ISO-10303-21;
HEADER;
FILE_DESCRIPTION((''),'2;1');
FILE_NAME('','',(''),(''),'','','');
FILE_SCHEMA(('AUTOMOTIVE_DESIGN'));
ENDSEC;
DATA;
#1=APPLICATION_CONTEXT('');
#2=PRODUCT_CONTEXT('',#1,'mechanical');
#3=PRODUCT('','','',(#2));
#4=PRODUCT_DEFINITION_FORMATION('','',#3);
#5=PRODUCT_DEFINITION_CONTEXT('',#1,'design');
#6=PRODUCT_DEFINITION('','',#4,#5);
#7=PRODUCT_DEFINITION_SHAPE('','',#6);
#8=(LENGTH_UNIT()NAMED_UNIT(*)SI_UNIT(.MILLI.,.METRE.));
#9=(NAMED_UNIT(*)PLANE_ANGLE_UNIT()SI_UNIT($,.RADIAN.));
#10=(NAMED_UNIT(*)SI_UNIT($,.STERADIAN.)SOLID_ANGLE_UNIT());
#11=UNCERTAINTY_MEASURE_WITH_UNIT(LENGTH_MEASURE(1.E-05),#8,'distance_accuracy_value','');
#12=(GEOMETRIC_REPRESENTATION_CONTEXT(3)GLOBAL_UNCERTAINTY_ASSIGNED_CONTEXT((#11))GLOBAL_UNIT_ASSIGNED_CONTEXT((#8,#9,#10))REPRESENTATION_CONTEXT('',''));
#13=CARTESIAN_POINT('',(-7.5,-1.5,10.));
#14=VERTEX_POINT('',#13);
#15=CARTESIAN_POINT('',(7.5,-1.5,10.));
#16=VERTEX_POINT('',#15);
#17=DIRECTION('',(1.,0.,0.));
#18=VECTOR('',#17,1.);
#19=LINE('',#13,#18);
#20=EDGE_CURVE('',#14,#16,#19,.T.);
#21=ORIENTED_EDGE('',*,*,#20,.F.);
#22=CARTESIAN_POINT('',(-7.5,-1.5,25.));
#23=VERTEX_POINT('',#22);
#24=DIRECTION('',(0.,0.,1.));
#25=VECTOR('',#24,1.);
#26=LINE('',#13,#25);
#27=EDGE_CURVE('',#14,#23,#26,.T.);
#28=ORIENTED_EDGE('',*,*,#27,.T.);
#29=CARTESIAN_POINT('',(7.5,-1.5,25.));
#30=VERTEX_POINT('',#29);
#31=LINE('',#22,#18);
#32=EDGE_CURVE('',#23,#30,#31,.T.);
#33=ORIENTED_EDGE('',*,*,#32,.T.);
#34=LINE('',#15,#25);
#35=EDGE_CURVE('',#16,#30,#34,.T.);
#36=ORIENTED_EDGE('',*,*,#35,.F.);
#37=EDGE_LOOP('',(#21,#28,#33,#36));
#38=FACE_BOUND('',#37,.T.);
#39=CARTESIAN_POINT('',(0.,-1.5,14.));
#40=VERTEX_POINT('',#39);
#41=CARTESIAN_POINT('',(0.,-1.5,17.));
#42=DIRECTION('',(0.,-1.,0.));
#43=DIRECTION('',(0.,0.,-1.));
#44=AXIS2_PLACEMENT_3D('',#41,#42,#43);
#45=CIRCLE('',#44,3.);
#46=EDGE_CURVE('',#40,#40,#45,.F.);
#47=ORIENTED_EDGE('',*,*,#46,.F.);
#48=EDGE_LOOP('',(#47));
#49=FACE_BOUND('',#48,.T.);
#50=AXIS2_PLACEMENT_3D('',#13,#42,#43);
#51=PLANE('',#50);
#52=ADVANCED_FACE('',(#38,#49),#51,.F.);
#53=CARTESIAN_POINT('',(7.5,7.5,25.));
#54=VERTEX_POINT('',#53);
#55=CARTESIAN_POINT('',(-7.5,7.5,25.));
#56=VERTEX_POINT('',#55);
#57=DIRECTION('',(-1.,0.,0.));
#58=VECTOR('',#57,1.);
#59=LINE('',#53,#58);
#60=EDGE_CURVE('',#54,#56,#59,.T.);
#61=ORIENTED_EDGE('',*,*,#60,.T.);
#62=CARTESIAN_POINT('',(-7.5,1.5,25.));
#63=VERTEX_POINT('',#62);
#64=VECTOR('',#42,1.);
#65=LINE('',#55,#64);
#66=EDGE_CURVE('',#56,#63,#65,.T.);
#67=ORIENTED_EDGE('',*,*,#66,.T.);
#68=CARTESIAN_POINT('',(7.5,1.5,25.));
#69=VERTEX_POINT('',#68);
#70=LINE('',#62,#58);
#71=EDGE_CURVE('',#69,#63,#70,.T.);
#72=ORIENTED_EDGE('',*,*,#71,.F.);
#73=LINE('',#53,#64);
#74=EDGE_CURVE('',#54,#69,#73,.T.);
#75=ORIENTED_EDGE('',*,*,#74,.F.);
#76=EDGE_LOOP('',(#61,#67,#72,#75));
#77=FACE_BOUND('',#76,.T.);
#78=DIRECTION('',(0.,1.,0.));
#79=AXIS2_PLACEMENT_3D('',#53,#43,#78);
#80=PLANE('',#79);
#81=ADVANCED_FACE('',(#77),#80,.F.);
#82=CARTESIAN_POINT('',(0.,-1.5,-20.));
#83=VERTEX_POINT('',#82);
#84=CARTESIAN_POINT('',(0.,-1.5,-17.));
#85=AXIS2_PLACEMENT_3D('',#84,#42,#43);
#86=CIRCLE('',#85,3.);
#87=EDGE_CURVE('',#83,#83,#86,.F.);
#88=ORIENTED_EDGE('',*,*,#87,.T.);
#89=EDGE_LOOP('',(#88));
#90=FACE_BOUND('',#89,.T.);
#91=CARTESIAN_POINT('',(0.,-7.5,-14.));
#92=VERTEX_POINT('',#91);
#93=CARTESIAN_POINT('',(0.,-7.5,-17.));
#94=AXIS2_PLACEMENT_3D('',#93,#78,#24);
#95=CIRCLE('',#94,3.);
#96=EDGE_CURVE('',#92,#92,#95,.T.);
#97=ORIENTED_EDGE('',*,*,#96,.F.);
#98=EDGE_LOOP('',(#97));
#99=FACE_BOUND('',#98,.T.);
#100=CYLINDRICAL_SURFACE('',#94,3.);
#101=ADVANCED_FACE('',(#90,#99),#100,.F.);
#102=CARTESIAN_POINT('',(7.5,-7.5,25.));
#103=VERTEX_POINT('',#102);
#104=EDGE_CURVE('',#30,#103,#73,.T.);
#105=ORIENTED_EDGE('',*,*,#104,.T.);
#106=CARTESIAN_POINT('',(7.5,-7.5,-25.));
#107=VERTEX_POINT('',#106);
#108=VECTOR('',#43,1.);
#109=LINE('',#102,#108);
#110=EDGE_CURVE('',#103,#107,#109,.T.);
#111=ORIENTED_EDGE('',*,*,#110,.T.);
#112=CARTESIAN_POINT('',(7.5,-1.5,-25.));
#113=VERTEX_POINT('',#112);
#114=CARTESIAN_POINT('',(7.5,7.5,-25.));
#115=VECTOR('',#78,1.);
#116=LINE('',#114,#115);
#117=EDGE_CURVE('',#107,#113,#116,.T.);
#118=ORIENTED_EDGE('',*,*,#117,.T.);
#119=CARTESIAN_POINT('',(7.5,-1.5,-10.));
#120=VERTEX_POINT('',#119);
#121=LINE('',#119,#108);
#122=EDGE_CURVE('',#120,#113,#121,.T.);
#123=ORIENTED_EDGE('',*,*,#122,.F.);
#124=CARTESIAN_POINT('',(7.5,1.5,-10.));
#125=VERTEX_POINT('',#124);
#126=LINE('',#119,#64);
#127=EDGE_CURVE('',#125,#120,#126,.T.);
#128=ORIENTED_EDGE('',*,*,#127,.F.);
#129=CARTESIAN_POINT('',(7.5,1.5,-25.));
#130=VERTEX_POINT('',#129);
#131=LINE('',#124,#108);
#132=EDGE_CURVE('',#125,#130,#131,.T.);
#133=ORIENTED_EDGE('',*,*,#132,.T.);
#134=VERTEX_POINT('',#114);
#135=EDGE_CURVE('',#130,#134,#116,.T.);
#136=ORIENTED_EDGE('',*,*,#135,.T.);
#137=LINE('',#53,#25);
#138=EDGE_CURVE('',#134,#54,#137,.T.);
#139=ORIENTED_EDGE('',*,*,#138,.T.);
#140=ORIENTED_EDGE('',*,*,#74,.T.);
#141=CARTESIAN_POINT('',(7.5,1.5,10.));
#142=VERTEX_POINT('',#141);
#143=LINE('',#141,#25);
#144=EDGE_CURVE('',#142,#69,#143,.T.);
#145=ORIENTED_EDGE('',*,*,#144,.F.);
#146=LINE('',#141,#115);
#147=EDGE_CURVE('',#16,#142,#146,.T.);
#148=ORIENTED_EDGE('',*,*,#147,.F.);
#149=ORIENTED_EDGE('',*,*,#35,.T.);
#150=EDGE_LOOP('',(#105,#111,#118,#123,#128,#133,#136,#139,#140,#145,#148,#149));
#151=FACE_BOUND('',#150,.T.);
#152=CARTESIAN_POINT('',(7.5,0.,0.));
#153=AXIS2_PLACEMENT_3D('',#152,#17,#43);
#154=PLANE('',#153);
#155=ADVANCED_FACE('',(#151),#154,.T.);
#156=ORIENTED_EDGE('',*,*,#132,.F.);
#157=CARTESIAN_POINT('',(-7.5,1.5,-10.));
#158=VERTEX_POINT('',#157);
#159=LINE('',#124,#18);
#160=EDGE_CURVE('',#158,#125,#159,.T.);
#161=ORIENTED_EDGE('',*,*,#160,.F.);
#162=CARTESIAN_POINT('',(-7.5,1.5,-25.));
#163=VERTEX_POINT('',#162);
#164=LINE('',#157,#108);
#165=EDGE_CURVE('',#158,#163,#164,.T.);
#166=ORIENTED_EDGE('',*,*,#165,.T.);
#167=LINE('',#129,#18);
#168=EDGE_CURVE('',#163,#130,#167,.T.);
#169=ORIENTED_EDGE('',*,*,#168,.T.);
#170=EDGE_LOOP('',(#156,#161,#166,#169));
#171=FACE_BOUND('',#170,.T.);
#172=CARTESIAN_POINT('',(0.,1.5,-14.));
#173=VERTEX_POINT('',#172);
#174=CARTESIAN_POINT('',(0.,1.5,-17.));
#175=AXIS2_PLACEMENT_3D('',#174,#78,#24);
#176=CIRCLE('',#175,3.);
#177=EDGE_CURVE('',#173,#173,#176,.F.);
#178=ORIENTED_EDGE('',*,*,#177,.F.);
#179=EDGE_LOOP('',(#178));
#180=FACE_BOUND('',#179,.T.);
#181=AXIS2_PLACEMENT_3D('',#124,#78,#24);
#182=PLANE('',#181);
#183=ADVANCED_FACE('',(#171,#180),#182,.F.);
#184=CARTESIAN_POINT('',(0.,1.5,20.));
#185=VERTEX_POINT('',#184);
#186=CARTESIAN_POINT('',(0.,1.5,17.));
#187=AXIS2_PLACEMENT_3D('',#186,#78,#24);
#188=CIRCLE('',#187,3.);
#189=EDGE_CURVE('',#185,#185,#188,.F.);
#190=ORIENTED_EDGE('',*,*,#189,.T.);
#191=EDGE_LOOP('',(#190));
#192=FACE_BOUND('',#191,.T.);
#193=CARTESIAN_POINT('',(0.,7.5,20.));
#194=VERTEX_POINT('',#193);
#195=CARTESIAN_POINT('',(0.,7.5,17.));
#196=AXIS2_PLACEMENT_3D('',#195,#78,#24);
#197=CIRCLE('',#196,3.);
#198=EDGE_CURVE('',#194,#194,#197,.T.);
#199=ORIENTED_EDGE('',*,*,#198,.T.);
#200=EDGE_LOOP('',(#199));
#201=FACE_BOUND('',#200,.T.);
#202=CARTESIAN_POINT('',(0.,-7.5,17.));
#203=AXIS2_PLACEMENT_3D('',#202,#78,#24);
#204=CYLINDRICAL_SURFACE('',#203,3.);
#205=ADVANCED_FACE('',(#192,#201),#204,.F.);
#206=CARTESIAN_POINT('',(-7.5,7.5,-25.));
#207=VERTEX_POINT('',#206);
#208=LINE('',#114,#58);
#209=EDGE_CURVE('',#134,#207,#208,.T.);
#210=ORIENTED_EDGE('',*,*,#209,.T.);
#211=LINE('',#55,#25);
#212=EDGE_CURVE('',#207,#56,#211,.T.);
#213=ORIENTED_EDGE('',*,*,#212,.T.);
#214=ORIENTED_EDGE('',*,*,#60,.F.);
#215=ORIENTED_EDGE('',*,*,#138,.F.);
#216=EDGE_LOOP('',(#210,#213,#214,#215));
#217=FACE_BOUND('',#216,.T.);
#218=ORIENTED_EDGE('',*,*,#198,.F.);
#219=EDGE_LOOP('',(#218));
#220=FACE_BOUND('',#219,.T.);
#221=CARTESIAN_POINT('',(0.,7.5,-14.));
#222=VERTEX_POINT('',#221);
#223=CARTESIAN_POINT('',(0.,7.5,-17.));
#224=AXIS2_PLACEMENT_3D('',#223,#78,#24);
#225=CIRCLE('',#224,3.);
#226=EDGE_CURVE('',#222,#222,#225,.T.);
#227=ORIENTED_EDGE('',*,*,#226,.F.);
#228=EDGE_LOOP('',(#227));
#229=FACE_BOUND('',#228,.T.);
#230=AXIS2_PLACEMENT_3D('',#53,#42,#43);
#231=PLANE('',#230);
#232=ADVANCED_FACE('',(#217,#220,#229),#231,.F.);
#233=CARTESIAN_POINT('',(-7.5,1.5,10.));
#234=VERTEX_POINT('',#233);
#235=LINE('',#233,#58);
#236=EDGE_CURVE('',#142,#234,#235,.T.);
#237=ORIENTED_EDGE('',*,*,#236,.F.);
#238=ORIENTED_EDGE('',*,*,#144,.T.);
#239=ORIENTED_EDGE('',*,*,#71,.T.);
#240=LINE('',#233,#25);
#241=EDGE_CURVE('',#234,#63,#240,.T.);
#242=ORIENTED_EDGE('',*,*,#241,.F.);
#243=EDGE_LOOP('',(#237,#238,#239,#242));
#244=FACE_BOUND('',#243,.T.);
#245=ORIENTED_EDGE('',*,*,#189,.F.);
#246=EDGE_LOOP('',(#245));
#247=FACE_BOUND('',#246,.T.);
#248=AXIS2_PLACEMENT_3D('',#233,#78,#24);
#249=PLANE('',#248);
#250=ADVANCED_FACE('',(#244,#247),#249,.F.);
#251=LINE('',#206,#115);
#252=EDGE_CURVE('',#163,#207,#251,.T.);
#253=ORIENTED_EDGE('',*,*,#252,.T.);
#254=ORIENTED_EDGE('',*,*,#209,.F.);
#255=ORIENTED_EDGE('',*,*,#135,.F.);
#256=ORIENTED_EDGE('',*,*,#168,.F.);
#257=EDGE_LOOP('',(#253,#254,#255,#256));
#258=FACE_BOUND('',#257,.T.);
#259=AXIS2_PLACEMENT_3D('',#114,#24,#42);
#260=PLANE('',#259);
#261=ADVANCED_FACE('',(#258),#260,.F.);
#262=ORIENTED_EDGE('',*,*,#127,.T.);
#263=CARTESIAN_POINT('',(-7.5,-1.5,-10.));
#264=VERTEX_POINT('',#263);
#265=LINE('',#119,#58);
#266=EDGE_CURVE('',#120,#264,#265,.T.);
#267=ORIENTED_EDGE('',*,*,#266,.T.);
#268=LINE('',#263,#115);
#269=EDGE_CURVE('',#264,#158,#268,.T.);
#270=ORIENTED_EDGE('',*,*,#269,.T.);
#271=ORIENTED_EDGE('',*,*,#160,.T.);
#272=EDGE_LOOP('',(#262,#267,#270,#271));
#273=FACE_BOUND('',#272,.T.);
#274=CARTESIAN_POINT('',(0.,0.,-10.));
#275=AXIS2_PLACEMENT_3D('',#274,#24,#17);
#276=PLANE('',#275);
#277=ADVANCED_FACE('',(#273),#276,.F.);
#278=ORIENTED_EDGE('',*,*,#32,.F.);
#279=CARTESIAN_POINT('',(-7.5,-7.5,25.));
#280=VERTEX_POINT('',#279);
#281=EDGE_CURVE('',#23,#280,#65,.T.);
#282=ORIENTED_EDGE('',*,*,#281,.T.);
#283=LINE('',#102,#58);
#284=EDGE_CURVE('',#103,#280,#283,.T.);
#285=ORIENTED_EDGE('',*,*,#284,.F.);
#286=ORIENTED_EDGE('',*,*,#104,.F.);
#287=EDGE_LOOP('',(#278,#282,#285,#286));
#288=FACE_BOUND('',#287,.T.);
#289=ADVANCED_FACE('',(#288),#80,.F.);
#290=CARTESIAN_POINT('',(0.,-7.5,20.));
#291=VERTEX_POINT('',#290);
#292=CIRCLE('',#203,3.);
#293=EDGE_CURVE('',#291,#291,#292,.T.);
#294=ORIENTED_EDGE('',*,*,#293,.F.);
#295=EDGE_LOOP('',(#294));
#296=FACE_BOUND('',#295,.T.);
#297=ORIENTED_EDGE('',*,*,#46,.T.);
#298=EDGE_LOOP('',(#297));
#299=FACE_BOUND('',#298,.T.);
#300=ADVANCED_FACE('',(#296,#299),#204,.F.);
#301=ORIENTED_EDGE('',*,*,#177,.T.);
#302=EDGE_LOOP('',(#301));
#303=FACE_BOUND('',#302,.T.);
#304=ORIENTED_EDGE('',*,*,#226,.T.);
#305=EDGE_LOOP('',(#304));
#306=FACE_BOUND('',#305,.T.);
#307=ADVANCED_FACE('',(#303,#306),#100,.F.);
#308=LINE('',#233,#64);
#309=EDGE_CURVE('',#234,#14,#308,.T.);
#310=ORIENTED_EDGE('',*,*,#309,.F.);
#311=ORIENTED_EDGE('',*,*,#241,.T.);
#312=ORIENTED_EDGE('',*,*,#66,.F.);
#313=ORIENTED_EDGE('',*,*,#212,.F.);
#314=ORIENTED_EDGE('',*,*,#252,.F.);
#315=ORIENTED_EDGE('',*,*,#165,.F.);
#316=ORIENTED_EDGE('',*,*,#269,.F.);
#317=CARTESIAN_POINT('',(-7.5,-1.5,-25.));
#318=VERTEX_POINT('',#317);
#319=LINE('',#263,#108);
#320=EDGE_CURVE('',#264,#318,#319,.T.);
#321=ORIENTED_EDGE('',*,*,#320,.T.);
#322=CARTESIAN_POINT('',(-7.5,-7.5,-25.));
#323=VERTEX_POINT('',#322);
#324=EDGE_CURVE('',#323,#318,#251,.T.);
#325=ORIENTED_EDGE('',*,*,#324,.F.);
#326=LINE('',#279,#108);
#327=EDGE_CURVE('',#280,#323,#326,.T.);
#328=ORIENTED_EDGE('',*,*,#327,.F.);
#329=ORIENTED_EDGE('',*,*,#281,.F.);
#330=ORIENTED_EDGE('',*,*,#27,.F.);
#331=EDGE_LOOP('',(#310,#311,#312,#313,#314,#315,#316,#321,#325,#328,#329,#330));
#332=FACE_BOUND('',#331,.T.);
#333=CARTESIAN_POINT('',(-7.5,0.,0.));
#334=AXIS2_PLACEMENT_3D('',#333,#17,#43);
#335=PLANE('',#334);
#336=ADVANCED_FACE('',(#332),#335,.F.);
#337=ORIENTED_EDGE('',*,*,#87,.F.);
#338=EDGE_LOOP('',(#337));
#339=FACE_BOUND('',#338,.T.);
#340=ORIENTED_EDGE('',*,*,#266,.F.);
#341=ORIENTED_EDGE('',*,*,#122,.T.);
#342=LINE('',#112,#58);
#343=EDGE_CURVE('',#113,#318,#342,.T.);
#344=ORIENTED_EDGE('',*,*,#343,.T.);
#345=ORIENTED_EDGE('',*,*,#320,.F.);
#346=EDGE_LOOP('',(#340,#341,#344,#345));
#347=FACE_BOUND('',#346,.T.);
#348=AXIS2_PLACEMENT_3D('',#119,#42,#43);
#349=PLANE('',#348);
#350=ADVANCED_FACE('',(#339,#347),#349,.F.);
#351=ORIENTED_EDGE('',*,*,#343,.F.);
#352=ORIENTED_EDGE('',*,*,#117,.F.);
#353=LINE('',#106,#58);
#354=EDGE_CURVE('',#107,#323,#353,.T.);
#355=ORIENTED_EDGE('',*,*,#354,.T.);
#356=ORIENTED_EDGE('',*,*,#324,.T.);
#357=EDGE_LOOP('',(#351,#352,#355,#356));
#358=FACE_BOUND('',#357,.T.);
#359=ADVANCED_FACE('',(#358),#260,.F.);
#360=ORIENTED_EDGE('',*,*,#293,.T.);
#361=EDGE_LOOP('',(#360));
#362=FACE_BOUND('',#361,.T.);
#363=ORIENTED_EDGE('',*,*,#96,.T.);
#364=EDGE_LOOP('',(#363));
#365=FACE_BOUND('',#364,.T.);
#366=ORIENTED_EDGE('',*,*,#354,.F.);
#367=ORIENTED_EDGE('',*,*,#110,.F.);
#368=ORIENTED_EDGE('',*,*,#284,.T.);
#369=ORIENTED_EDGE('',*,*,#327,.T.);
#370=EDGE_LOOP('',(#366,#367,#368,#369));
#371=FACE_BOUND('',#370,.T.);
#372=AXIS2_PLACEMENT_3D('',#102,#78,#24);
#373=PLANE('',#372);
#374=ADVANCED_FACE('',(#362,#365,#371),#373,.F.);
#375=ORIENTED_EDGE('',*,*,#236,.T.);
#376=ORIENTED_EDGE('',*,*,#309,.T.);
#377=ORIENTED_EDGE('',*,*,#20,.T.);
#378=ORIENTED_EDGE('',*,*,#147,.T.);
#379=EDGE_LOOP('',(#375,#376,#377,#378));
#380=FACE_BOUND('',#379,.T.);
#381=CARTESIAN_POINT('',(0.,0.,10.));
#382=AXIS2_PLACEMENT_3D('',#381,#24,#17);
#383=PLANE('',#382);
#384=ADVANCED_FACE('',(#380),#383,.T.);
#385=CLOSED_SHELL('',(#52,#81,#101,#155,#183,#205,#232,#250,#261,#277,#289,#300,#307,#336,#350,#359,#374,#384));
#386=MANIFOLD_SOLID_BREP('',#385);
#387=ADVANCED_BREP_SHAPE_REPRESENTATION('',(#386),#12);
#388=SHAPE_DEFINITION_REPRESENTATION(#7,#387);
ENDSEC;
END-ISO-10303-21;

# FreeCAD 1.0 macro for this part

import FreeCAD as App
import Part
import Sketcher


def add_polygon(sketch, points):
    """Adds a closed chain of lines whose ends are joined by coincident constraints."""
    first, n = sketch.GeometryCount, len(points)
    for a, b in zip(points, points[1:] + points[:1]):
        sketch.addGeometry(Part.LineSegment(App.Vector(*a, 0), App.Vector(*b, 0)), False)
    for i in range(n):
        sketch.addConstraint(Sketcher.Constraint("Coincident", first + i, 2, first + (i + 1) % n, 1))

doc = App.newDocument("Part")
body = doc.addObject("PartDesign::Body", "Body")

# Sketch on YZ plane
sketch1 = body.newObject("Sketcher::SketchObject", "Sketch")
sketch1.AttachmentSupport = (doc.getObject("YZ_Plane"), [""])
sketch1.MapMode = "FlatFace"
add_polygon(sketch1, [(8, 25), (-8, 25), (-8, -25), (8, -25)])  # lines 0-3
sketch1.addConstraint([
    Sketcher.Constraint("Horizontal", 0),
    Sketcher.Constraint("Vertical", 1),
    Sketcher.Constraint("Horizontal", 2),
    Sketcher.Constraint("Vertical", 3),
    Sketcher.Constraint("Symmetric", 0, 2, 2, 2, -1, 1),
    Sketcher.Constraint("DistanceX", 0, 2, 0, 1, 15.0),
    Sketcher.Constraint("DistanceY", 1, 2, 1, 1, 50.0),
])
pad1 = body.newObject("PartDesign::Pad", "Pad")
pad1.Profile = sketch1
pad1.Length = 15
pad1.Midplane = True

# Sketch on XZ plane
sketch2 = body.newObject("Sketcher::SketchObject", "Sketch001")
sketch2.AttachmentSupport = (doc.getObject("XZ_Plane"), [""])
sketch2.MapMode = "FlatFace"
sketch2.AttachmentOffset = App.Placement(App.Vector(0, 0, -7.5), App.Rotation())
sketch2.addGeometry([
    Part.Circle(App.Vector(0, -17, 0), App.Vector(0, 0, 1), 3),
    Part.Circle(App.Vector(0, 17, 0), App.Vector(0, 0, 1), 3),
], False)
sketch2.addConstraint([
    Sketcher.Constraint("Equal", 0, 1),
    Sketcher.Constraint("Symmetric", 0, 3, 1, 3, -1, 1),
    Sketcher.Constraint("PointOnObject", 0, 3, -2),
    Sketcher.Constraint("Diameter", 0, 6.0),
    Sketcher.Constraint("DistanceY", 0, 3, -1, 1, 17.0),
])
pocket1 = body.newObject("PartDesign::Pocket", "Pocket")
pocket1.Profile = sketch2
pocket1.Type = "ThroughAll"
pocket1.Reversed = True

# Sketch on XY plane
sketch3 = body.newObject("Sketcher::SketchObject", "Sketch002")
sketch3.AttachmentSupport = (doc.getObject("XY_Plane"), [""])
sketch3.MapMode = "FlatFace"
sketch3.AttachmentOffset = App.Placement(App.Vector(0, 0, 25), App.Rotation())
add_polygon(sketch3, [(-7.5, 1.5), (-7.5, -1.5), (7.5, -1.5), (7.5, 1.5)])  # lines 0-3
sketch3.addConstraint([
    Sketcher.Constraint("Vertical", 0),
    Sketcher.Constraint("Horizontal", 1),
    Sketcher.Constraint("Vertical", 2),
    Sketcher.Constraint("Horizontal", 3),
    Sketcher.Constraint("Symmetric", 0, 2, 2, 2, -1, 1),
    Sketcher.Constraint("DistanceX", 1, 1, 1, 2, 15.0),
    Sketcher.Constraint("DistanceY", 0, 2, 0, 1, 3.0),
])
pocket2 = body.newObject("PartDesign::Pocket", "Pocket001")
pocket2.Profile = sketch3
pocket2.Length = 15

# Sketch on XY plane
sketch4 = body.newObject("Sketcher::SketchObject", "Sketch003")
sketch4.AttachmentSupport = (doc.getObject("XY_Plane"), [""])
sketch4.MapMode = "FlatFace"
sketch4.AttachmentOffset = App.Placement(App.Vector(0, 0, -25), App.Rotation())
add_polygon(sketch4, [(7.5, 1.5), (7.5, -1.5), (-7.5, -1.5), (-7.5, 1.5)])  # lines 0-3
sketch4.addConstraint([
    Sketcher.Constraint("Vertical", 0),
    Sketcher.Constraint("Horizontal", 1),
    Sketcher.Constraint("Vertical", 2),
    Sketcher.Constraint("Horizontal", 3),
    Sketcher.Constraint("Symmetric", 0, 2, 2, 2, -1, 1),
    Sketcher.Constraint("DistanceX", 1, 2, 1, 1, 15.0),
    Sketcher.Constraint("DistanceY", 0, 2, 0, 1, 3.0),
])
pocket3 = body.newObject("PartDesign::Pocket", "Pocket002")
pocket3.Profile = sketch4
pocket3.Length = 15
pocket3.Reversed = True

doc.recompute()
